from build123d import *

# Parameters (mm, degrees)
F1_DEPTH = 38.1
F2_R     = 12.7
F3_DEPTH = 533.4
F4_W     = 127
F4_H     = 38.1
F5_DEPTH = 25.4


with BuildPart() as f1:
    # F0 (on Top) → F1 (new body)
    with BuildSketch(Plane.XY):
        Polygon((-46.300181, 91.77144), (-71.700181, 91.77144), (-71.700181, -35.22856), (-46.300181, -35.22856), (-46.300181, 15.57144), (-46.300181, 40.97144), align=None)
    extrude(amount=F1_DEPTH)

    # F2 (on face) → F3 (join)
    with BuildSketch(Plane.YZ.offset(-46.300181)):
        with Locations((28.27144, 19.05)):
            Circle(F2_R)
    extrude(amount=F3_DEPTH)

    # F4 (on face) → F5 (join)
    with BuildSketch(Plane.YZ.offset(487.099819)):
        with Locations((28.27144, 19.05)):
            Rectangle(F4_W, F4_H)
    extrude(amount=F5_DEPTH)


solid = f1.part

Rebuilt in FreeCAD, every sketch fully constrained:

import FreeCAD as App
import Part
import Sketcher

V = App.Vector
Q = App.Units.Quantity


def add_polygon(sketch, points):
    """Adds a closed chain of lines whose ends are joined by coincident constraints."""
    first, n = sketch.GeometryCount, len(points)
    for a, b in zip(points, points[1:] + points[:1]):
        sketch.addGeometry(Part.LineSegment(App.Vector(*a, 0), App.Vector(*b, 0)), False)
    for i in range(n):
        sketch.addConstraint(Sketcher.Constraint("Coincident", first + i, 2, first + (i + 1) % n, 1))

doc = App.newDocument("Part")
body = doc.addObject("PartDesign::Body", "Body")

sketch1 = body.newObject("Sketcher::SketchObject", "Sketch")
sketch1.AttachmentSupport = (doc.getObject("XY_Plane"), [""])
sketch1.MapMode = "FlatFace"
add_polygon(sketch1, [(-46, 92), (-72, 92), (-72, -35), (-46, -35)])
sketch1.addConstraint(Sketcher.Constraint("Horizontal", 0))
sketch1.addConstraint(Sketcher.Constraint("Vertical", 1))
sketch1.addConstraint(Sketcher.Constraint("Horizontal", 2))
sketch1.addConstraint(Sketcher.Constraint("Vertical", 3))
sketch1.addConstraint(Sketcher.Constraint("DistanceX", 0, 2, 0, 1, Q("1 in")))
sketch1.addConstraint(Sketcher.Constraint("DistanceY", 1, 2, 1, 1, Q("5 in")))
sketch1.addConstraint(Sketcher.Constraint("DistanceX", 0, 2, -1, 1, Q("71.700181 mm")))
sketch1.addConstraint(Sketcher.Constraint("DistanceY", -1, 1, 0, 2, Q("91.77144 mm")))
pad1 = body.newObject("PartDesign::Pad", "Pad")
pad1.Profile = sketch1
pad1.Length = Q("1.5 in")

sketch2 = body.newObject("Sketcher::SketchObject", "Sketch001")
sketch2.AttachmentSupport = (doc.getObject("YZ_Plane"), [""])
sketch2.MapMode = "FlatFace"
sketch2.AttachmentOffset = App.Placement(V(0, 0, -46.300181), App.Rotation())
sketch2.addGeometry(Part.Circle(V(28, 19, 0), V(0, 0, 1), 13), False)
sketch2.addConstraint(Sketcher.Constraint("Diameter", 0, Q("1 in")))
sketch2.addConstraint(Sketcher.Constraint("DistanceY", -1, 1, 0, 3, Q("0.75 in")))
sketch2.addConstraint(Sketcher.Constraint("DistanceX", -1, 1, 0, 3, Q("28.27144 mm")))
pad2 = body.newObject("PartDesign::Pad", "Pad001")
pad2.Profile = sketch2
pad2.Length = Q("21 in")

sketch3 = body.newObject("Sketcher::SketchObject", "Sketch002")
sketch3.AttachmentSupport = (doc.getObject("YZ_Plane"), [""])
sketch3.MapMode = "FlatFace"
sketch3.AttachmentOffset = App.Placement(V(0, 0, 487.099819), App.Rotation())
add_polygon(sketch3, [(-35, 38), (-35, 0), (92, 0), (92, 38)])
sketch3.addConstraint(Sketcher.Constraint("Vertical", 0))
sketch3.addConstraint(Sketcher.Constraint("Horizontal", 1))
sketch3.addConstraint(Sketcher.Constraint("Vertical", 2))
sketch3.addConstraint(Sketcher.Constraint("Horizontal", 3))
sketch3.addConstraint(Sketcher.Constraint("PointOnObject", 0, 2, -1))
sketch3.addConstraint(Sketcher.Constraint("DistanceX", 1, 1, 1, 2, Q("5 in")))
sketch3.addConstraint(Sketcher.Constraint("DistanceY", 0, 2, 0, 1, Q("1.5 in")))
sketch3.addConstraint(Sketcher.Constraint("DistanceX", 0, 2, -1, 1, Q("35.22856 mm")))
pad3 = body.newObject("PartDesign::Pad", "Pad002")
pad3.Profile = sketch3
pad3.Length = Q("1 in")

doc.recompute()
